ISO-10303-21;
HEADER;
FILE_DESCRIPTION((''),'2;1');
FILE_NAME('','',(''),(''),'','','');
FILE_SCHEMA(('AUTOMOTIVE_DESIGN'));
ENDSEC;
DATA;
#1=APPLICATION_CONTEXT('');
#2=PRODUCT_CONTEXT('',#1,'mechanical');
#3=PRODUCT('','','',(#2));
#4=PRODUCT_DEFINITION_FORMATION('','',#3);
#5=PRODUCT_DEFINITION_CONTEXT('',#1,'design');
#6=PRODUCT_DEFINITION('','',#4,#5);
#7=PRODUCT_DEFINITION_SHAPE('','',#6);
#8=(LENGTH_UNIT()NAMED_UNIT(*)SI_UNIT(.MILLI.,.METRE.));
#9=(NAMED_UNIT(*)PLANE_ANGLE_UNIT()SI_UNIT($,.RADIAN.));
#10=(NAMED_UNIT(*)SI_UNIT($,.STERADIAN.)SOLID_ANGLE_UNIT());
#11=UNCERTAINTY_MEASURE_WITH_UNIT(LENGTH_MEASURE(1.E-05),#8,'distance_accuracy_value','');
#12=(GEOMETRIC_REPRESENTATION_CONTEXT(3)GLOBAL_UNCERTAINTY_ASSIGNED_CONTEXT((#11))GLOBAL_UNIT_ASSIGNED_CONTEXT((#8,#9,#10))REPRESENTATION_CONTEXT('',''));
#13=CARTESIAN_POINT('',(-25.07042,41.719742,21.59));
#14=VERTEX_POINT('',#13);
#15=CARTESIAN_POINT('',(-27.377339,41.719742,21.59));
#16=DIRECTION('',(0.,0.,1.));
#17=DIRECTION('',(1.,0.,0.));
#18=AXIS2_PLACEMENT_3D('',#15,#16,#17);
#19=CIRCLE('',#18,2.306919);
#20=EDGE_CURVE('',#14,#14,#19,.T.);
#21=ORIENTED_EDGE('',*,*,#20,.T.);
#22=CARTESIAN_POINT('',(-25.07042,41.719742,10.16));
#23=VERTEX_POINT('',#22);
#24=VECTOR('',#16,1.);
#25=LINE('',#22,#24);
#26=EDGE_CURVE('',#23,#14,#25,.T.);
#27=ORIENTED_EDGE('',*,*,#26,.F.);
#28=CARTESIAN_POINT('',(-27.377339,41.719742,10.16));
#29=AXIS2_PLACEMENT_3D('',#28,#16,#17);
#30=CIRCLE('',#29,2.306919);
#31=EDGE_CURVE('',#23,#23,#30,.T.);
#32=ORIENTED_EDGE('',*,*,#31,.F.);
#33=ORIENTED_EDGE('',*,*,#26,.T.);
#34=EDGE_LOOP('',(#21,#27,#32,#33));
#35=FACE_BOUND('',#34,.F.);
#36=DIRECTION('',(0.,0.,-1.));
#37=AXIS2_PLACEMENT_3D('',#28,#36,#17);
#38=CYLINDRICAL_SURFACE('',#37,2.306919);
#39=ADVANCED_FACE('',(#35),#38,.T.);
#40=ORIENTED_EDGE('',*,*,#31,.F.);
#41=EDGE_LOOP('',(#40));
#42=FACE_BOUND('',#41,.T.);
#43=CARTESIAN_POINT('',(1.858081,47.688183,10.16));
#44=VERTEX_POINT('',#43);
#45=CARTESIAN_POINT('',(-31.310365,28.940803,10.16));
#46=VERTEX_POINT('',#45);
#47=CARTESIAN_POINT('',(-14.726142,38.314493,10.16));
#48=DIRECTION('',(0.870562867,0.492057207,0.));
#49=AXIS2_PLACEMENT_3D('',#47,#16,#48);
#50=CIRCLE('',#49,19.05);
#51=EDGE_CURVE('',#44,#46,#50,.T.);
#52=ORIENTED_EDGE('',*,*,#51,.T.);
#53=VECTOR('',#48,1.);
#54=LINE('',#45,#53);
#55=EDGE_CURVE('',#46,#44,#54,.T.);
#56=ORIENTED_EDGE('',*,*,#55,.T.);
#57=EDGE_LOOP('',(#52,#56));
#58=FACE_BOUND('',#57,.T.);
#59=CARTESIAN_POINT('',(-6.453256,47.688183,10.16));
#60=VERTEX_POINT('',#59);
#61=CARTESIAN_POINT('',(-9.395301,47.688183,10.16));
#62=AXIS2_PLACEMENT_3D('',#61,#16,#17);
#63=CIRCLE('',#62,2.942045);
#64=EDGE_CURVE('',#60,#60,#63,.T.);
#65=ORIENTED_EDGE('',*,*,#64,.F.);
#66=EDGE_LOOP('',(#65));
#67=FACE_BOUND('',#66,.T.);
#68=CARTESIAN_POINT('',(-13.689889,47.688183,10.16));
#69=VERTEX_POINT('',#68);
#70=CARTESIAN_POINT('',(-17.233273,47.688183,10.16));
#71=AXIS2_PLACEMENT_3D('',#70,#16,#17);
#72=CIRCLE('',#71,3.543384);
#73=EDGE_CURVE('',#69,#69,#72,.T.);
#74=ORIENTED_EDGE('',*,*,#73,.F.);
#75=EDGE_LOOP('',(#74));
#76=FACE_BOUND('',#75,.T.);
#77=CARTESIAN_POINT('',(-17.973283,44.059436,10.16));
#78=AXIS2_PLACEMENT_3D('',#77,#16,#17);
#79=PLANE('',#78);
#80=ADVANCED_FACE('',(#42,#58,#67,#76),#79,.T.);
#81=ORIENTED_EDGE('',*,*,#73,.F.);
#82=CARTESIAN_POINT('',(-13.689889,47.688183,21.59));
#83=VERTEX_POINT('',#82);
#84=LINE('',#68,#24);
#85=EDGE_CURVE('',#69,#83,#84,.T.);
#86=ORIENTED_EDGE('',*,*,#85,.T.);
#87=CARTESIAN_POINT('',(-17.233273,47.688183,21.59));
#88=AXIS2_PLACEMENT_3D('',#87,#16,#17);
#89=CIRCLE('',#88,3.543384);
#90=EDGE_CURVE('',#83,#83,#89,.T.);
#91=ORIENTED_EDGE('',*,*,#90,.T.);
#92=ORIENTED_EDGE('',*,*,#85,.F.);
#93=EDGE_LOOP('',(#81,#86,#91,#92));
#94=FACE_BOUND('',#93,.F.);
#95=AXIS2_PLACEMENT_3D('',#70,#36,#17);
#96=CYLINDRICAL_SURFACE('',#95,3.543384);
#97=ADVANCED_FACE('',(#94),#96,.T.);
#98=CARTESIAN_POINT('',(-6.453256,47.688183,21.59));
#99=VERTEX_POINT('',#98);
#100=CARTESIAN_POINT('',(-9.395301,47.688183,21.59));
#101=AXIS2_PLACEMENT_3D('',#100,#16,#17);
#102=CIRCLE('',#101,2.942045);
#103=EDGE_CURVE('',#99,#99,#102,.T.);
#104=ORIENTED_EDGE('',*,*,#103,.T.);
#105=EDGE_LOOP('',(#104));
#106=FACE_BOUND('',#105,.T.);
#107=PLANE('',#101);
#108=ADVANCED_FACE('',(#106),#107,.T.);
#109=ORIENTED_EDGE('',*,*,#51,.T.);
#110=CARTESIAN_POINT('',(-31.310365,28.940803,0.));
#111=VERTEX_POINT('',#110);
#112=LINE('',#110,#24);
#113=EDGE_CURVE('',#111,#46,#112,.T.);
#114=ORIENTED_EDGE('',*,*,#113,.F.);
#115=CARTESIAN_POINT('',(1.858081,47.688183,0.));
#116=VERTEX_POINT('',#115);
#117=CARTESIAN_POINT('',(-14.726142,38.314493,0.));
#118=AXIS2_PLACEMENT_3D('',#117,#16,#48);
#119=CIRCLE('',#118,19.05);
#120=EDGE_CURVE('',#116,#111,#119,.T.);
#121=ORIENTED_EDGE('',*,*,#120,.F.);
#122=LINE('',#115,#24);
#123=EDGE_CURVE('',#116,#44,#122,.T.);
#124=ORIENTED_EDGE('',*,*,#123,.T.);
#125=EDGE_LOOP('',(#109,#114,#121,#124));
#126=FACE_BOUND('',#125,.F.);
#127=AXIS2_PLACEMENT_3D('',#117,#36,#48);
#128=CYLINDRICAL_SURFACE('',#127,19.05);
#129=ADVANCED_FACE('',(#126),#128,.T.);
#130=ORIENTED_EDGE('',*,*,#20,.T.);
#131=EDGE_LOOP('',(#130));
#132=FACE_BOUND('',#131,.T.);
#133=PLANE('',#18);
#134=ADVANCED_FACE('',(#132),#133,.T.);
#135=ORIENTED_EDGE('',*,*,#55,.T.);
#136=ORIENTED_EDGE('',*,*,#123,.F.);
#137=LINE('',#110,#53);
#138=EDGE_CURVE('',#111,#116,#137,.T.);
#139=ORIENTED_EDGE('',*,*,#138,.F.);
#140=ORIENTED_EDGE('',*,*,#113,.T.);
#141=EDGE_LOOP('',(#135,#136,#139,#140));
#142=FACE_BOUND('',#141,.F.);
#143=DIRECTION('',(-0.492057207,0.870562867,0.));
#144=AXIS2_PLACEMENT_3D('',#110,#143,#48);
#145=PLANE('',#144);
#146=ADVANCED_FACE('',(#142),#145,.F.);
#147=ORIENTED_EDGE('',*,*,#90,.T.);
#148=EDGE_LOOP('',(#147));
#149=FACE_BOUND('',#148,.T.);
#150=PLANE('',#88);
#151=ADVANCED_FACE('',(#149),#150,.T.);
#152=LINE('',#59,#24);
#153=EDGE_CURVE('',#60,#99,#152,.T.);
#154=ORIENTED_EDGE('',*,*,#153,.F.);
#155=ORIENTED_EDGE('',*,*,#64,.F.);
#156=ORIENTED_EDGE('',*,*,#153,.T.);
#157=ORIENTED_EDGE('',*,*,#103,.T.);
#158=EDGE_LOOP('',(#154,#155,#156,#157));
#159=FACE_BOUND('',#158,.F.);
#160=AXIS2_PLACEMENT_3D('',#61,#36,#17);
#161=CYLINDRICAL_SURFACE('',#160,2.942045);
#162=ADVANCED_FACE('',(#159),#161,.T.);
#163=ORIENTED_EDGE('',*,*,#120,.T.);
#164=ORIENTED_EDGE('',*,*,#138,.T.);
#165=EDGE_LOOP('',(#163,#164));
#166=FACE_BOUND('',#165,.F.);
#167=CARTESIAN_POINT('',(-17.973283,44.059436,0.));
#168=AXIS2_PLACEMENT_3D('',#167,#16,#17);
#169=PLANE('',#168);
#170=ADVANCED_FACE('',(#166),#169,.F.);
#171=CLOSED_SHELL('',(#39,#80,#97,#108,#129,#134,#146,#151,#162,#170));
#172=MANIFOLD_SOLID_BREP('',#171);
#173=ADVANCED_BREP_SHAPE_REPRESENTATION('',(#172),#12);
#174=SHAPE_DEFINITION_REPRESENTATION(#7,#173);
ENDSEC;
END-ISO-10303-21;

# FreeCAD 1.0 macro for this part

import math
import FreeCAD as App
import Part
import Sketcher
Q = App.Units.Quantity

doc = App.newDocument("Part")
params = doc.addObject("Spreadsheet::Sheet", "Params")
for row, (alias, value) in enumerate([
    ("sketch1_radius", "0.75 in"),
    ("pad1_length", "0.4 in"),
    ("pad2_length", "0.45 in"),
], start=1):
    params.set(f"A{row}", alias)
    params.set(f"B{row}", "=" + value)
    params.setAlias(f"B{row}", alias)

body = doc.addObject("PartDesign::Body", "Body")

# Sketch on XY plane
sketch1 = doc.addObject("Sketcher::SketchObject", "Sketch")
body.addObject(sketch1)
sketch1.AttachmentSupport = (doc.XY_Plane, [""])
sketch1.MapMode = "FlatFace"
sketch1.addGeometry([
    Part.ArcOfCircle(Part.Circle(App.Vector(-15, 38, 0), App.Vector(0, 0, 1), 19), math.radians(29), math.radians(209)),
    Part.LineSegment(App.Vector(-31, 29, 0), App.Vector(2, 48, 0)),
], False)
sketch1.addConstraint([
    Sketcher.Constraint("Coincident", 0, 1, 1, 2),
    Sketcher.Constraint("Coincident", 1, 1, 0, 2),
    Sketcher.Constraint("Radius", 0, Q("0.75 in")),
    Sketcher.Constraint("DistanceX", -1, 1, 0, 1, 1.858081),
    Sketcher.Constraint("DistanceY", 0, 3, 0, 1, 9.37369),
    Sketcher.Constraint("DistanceY", 1, 1, 0, 3, 9.37369),
    Sketcher.Constraint("DistanceY", -1, 1, 0, 3, 38.314493),
])
sketch1.setExpression("Constraints[2]", "Params.sketch1_radius")
pad1 = doc.addObject("PartDesign::Pad", "Pad")
body.addObject(pad1)
pad1.Profile = sketch1
pad1.setExpression("Length", "Params.pad1_length")

# Sketch on XY plane
sketch2 = doc.addObject("Sketcher::SketchObject", "Sketch001")
body.addObject(sketch2)
sketch2.AttachmentSupport = (doc.XY_Plane, [""])
sketch2.MapMode = "FlatFace"
sketch2.AttachmentOffset = App.Placement(App.Vector(0, 0, 0.4 * 25.4), App.Rotation())
sketch2.addGeometry([
    Part.Circle(App.Vector(-27.4, 41.7, 0), App.Vector(0, 0, 1), 2.3),
    Part.Circle(App.Vector(-17.2, 47.7, 0), App.Vector(0, 0, 1), 3.5),
    Part.Circle(App.Vector(-9.4, 47.7, 0), App.Vector(0, 0, 1), 2.9),
], False)
sketch2.addConstraint([
    Sketcher.Constraint("Horizontal", 1, 3, 2, 3),
    Sketcher.Constraint("Diameter", 0, 4.613838),
    Sketcher.Constraint("Diameter", 1, 7.086768),
    Sketcher.Constraint("Diameter", 2, 5.88409),
    Sketcher.Constraint("DistanceX", 2, 3, -1, 1, 9.395301),
    Sketcher.Constraint("DistanceX", 0, 3, -1, 1, 27.377339),
    Sketcher.Constraint("DistanceY", -1, 1, 0, 3, 41.719742),
    Sketcher.Constraint("DistanceY", 0, 3, 1, 3, 5.968441),
    Sketcher.Constraint("DistanceX", 1, 3, -1, 1, 17.233273),
])
pad2 = doc.addObject("PartDesign::Pad", "Pad001")
body.addObject(pad2)
pad2.Profile = sketch2
pad2.setExpression("Length", "Params.pad2_length")

doc.recompute()
